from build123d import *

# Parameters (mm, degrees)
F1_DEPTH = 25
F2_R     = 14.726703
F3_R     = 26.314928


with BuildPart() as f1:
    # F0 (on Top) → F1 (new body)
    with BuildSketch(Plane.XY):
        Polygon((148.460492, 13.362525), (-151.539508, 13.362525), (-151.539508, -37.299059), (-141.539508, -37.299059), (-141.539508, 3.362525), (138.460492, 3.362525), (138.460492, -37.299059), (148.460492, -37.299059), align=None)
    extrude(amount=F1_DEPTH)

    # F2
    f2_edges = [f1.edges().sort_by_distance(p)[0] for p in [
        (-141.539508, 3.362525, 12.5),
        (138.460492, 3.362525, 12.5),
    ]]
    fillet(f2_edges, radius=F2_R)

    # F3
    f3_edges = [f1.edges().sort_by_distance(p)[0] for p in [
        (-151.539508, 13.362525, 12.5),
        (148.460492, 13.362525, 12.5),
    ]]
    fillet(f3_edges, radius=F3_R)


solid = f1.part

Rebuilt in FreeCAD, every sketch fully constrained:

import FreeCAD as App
import Part
import Sketcher
from FreeCAD import Vector


def edges_at(feature, points):
    """Names of the edges that pass closest to the given points."""
    edges = feature.Shape.Edges
    near = lambda p: min(range(len(edges)), key=lambda i: edges[i].distToShape(Part.Vertex(*p))[0])
    return sorted({f"Edge{near(p) + 1}" for p in points})


def add_polygon(sketch, points):
    """Adds a closed chain of lines whose ends are joined by coincident constraints."""
    first, n = sketch.GeometryCount, len(points)
    for a, b in zip(points, points[1:] + points[:1]):
        sketch.addGeometry(Part.LineSegment(App.Vector(*a, 0), App.Vector(*b, 0)), False)
    for i in range(n):
        sketch.addConstraint(Sketcher.Constraint("Coincident", first + i, 2, first + (i + 1) % n, 1))

doc = App.newDocument("Part")
params = doc.addObject("Spreadsheet::Sheet", "Params")
for row, (alias, value) in enumerate([
    ("sketch1_width", "300 mm"),
    ("sketch1_width2", "10 mm"),
    ("pad1_length", "25 mm"),
    ("fillet_radius", "14.726703 mm"),
    ("fillet2_radius", "26.314928 mm"),
], start=1):
    params.set(f"A{row}", alias)
    params.set(f"B{row}", "=" + value)
    params.setAlias(f"B{row}", alias)

body = doc.addObject("PartDesign::Body", "Body")

# Sketch on XY plane
sketch1 = body.newObject("Sketcher::SketchObject", "Sketch")
sketch1.AttachmentSupport = (doc.getObject("XY_Plane"), [""])
sketch1.MapMode = "FlatFace"
add_polygon(sketch1, [(148.460492, 13.362525), (-151.539508, 13.362525), (-151.539508, -37.299059), (-141.539508, -37.299059), (-141.539508, 3.362525), (138.460492, 3.362525), (138.460492, -37.299059), (148.460492, -37.299059)])  # lines 0-7
sketch1.addConstraint([
    Sketcher.Constraint("Horizontal", 0),
    Sketcher.Constraint("Vertical", 1),
    Sketcher.Constraint("Horizontal", 2),
    Sketcher.Constraint("Vertical", 3),
    Sketcher.Constraint("Horizontal", 4),
    Sketcher.Constraint("Vertical", 5),
    Sketcher.Constraint("Horizontal", 6),
    Sketcher.Constraint("Vertical", 7),
    Sketcher.Constraint("Horizontal", 2, 2, 5, 2),
    Sketcher.Constraint("Equal", 2, 6),
    Sketcher.Constraint("DistanceX", 0, 2, 0, 1, 300.0),
    Sketcher.Constraint("DistanceX", 2, 1, 2, 2, 10.0),
    Sketcher.Constraint("DistanceY", 3, 2, 0, 2, 10.0),
    Sketcher.Constraint("DistanceY", 1, 2, 1, 1, 50.661584),
    Sketcher.Constraint("DistanceX", 0, 2, -1, 1, 151.539508),
    Sketcher.Constraint("DistanceY", 1, 2, -1, 1, 37.299059),
])
sketch1.setExpression("Constraints[18]", "Params.sketch1_width")
sketch1.setExpression("Constraints[19]", "Params.sketch1_width2")
pad1 = body.newObject("PartDesign::Pad", "Pad")
pad1.Profile = sketch1
pad1.setExpression("Length", "Params.pad1_length")
doc.recompute()

fillet = body.newObject("PartDesign::Fillet", "Fillet")
fillet.Base = (pad1, edges_at(pad1, [(-141.54, 3.363, 12.5), (138.46, 3.363, 12.5)]))
fillet.setExpression("Radius", "Params.fillet_radius")
doc.recompute()

fillet2 = body.newObject("PartDesign::Fillet", "Fillet001")
fillet2.Base = (fillet, edges_at(fillet, [(-151.54, 13.363, 12.5), (148.46, 13.363, 12.5)]))
fillet2.setExpression("Radius", "Params.fillet2_radius")

doc.recompute()
